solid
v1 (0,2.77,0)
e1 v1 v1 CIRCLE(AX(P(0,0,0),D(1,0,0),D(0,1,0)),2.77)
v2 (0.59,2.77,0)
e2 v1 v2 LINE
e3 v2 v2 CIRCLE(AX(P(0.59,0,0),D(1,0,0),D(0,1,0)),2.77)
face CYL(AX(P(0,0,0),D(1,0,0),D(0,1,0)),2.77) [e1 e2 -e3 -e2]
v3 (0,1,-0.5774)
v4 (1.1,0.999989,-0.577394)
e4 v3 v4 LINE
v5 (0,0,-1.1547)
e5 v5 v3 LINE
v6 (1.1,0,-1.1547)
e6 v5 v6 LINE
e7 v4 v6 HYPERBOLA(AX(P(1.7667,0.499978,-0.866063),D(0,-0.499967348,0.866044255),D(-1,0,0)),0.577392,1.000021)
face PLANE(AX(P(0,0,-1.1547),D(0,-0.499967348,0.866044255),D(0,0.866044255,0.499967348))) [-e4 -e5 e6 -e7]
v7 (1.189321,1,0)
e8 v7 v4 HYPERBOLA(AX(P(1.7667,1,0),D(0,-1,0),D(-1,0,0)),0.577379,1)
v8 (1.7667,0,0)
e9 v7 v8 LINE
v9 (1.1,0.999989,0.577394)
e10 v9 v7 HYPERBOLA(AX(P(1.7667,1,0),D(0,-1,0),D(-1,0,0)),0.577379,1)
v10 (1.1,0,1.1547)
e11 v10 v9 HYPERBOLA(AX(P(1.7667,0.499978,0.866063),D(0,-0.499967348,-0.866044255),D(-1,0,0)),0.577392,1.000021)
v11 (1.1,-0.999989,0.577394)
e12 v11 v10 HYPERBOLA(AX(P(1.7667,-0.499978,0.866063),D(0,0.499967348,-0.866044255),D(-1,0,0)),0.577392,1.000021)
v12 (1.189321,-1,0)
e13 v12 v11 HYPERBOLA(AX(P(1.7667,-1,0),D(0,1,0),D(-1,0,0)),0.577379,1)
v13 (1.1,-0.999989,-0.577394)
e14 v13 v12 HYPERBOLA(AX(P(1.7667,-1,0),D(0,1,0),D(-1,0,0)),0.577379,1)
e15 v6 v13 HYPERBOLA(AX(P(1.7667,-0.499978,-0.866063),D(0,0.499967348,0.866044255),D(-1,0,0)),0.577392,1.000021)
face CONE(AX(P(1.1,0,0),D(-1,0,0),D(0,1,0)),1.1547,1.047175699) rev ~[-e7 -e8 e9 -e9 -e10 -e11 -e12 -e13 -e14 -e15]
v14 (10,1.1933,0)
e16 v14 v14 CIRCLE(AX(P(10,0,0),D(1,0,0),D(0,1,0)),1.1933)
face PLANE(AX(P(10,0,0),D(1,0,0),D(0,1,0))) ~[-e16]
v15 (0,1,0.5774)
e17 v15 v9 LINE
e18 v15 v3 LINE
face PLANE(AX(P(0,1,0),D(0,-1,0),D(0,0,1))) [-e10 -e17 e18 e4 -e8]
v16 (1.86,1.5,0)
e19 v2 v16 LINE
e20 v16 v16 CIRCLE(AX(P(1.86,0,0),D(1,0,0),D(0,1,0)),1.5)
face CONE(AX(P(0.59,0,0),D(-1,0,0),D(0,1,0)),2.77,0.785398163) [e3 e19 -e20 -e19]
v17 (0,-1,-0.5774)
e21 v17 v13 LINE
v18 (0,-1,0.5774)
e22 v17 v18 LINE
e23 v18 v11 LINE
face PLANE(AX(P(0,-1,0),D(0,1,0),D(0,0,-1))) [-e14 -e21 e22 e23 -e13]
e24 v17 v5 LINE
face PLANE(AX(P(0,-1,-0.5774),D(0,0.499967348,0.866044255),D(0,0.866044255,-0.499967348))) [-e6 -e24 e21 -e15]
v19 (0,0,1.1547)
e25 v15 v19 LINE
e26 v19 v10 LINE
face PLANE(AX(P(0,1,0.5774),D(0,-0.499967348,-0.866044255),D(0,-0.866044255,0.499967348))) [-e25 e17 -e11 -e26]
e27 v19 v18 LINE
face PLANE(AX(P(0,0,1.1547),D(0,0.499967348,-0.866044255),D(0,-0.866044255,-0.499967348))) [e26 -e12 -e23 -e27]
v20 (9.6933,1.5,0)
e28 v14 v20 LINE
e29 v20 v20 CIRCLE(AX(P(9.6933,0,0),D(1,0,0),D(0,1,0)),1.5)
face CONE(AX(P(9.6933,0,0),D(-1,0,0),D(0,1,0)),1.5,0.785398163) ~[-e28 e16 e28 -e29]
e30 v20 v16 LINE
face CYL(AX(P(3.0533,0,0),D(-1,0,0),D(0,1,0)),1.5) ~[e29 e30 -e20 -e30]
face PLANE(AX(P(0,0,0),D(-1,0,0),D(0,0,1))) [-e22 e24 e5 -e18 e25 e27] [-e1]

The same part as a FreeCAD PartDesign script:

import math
import FreeCAD as App
import Part
import Sketcher

V = App.Vector
Q = App.Units.Quantity


def edges_at(feature, points):
    """Names of the edges that pass closest to the given points."""
    edges = feature.Shape.Edges
    near = lambda p: min(range(len(edges)), key=lambda i: edges[i].distToShape(Part.Vertex(*p))[0])
    return sorted({f"Edge{near(p) + 1}" for p in points})


def add_polygon(sketch, points):
    """Adds a closed chain of lines whose ends are joined by coincident constraints."""
    first, n = sketch.GeometryCount, len(points)
    for a, b in zip(points, points[1:] + points[:1]):
        sketch.addGeometry(Part.LineSegment(App.Vector(*a, 0), App.Vector(*b, 0)), False)
    for i in range(n):
        sketch.addConstraint(Sketcher.Constraint("Coincident", first + i, 2, first + (i + 1) % n, 1))

doc = App.newDocument("Part")
params = doc.addObject("Spreadsheet::Sheet", "Params")
for row, (alias, value) in enumerate([
    ("sketch1_width", "1.1 mm"),
    ("sketch1_height", "1.5 mm"),
    ("sketch1_width2", "0.59 mm"),
    ("revolution_angle", "360 deg"),
    ("chamfer_size", "0.3067 mm"),
    ("chamfer_size2", "0.3067 mm"),
], start=1):
    params.set(f"A{row}", alias)
    params.set(f"B{row}", "=" + value)
    params.setAlias(f"B{row}", alias)

body = doc.addObject("PartDesign::Body", "Body")

# Sketch on XY plane
sketch1 = body.newObject("Sketcher::SketchObject", "Sketch")
sketch1.AttachmentSupport = (doc.getObject("XY_Plane"), [""])
sketch1.MapMode = "FlatFace"
add_polygon(sketch1, [(1.7667, 0), (10, 0), (10, 1.5), (1.86, 1.5), (0.59, 2.77), (0, 2.77), (0, 1.1547), (1.1, 1.1547)])  # lines 0-7
sketch1.addConstraint(Sketcher.Constraint("Horizontal", 0))
sketch1.addConstraint(Sketcher.Constraint("Vertical", 1))
sketch1.addConstraint(Sketcher.Constraint("Horizontal", 2))
sketch1.addConstraint(Sketcher.Constraint("Horizontal", 4))
sketch1.addConstraint(Sketcher.Constraint("Vertical", 5))
sketch1.addConstraint(Sketcher.Constraint("Horizontal", 6))
sketch1.addConstraint(Sketcher.Constraint("PointOnObject", 0, 2, -1))
sketch1.addConstraint(Sketcher.Constraint("PointOnObject", 4, 2, -2))
sketch1.addConstraint(Sketcher.Constraint("DistanceX", 6, 1, 6, 2, 1.1))
sketch1.addConstraint(Sketcher.Constraint("DistanceX", -1, 1, 0, 2, 10.0))
sketch1.addConstraint(Sketcher.Constraint("DistanceX", -1, 1, 2, 2, 1.86))
sketch1.addConstraint(Sketcher.Constraint("Angle", 3, Q("135 deg")))
sketch1.addConstraint(Sketcher.Constraint("DistanceY", 1, 1, 1, 2, 1.5))
sketch1.addConstraint(Sketcher.Constraint("DistanceX", 4, 2, 4, 1, 0.59))
sketch1.addConstraint(Sketcher.Constraint("DistanceX", 0, 1, 0, 2, 8.2333))
sketch1.addConstraint(Sketcher.Constraint("DistanceY", 5, 2, 5, 1, 1.6153))
sketch1.setExpression("Constraints[16]", "Params.sketch1_width")
sketch1.setExpression("Constraints[20]", "Params.sketch1_height")
sketch1.setExpression("Constraints[21]", "Params.sketch1_width2")
revolution = body.newObject("PartDesign::Revolution", "Revolution")
revolution.Profile = sketch1
revolution.ReferenceAxis = (sketch1, ["H_Axis"])
revolution.setExpression("Angle", "Params.revolution_angle")

# Sketch on YZ plane
sketch2 = body.newObject("Sketcher::SketchObject", "Sketch001")
sketch2.AttachmentSupport = (doc.getObject("YZ_Plane"), [""])
sketch2.MapMode = "FlatFace"
sketch2.addGeometry(Part.LineSegment(V(1, 0.5774, 0), V(0, 1.1547, 0)), False)
sketch2.addGeometry(Part.ArcOfCircle(Part.Circle(V(0, 0, 0), V(0, 0, 1), 1.1547), math.radians(30.002137), math.radians(90)), False)
sketch2.addGeometry(Part.ArcOfCircle(Part.Circle(V(0, 0, 0), V(0, 0, 1), 1.1547), math.radians(90), math.radians(149.997863)), False)
sketch2.addGeometry(Part.LineSegment(V(0, 1.1547, 0), V(-1, 0.5774, 0)), False)
sketch2.addGeometry(Part.ArcOfCircle(Part.Circle(V(0, 0, 0), V(0, 0, 1), 1.1547), math.radians(-30.002137), math.radians(30.002137)), False)
sketch2.addGeometry(Part.LineSegment(V(1, 0.5774, 0), V(1, -0.5774, 0)), False)
sketch2.addGeometry(Part.LineSegment(V(-1, 0.5774, 0), V(-1, -0.5774, 0)), False)
sketch2.addGeometry(Part.ArcOfCircle(Part.Circle(V(0, 0, 0), V(0, 0, 1), 1.1547), math.radians(149.997863), math.radians(210.002137)), False)
sketch2.addGeometry(Part.LineSegment(V(-1, -0.5774, 0), V(0, -1.1547, 0)), False)
sketch2.addGeometry(Part.ArcOfCircle(Part.Circle(V(0, 0, 0), V(0, 0, 1), 1.1547), math.radians(-149.997863), math.radians(-90)), False)
sketch2.addGeometry(Part.ArcOfCircle(Part.Circle(V(0, 0, 0), V(0, 0, 1), 1.1547), math.radians(-90), math.radians(-30.002137)), False)
sketch2.addGeometry(Part.LineSegment(V(0, -1.1547, 0), V(1, -0.5774, 0)), False)
sketch2.addConstraint(Sketcher.Constraint("Coincident", 0, 1, 1, 1))
sketch2.addConstraint(Sketcher.Constraint("Coincident", 1, 2, 0, 2))
sketch2.addConstraint(Sketcher.Constraint("Coincident", 2, 1, 3, 1))
sketch2.addConstraint(Sketcher.Constraint("Coincident", 3, 2, 2, 2))
sketch2.addConstraint(Sketcher.Constraint("Coincident", 4, 1, 5, 2))
sketch2.addConstraint(Sketcher.Constraint("Coincident", 5, 1, 4, 2))
sketch2.addConstraint(Sketcher.Constraint("Coincident", 6, 1, 7, 1))
sketch2.addConstraint(Sketcher.Constraint("Coincident", 7, 2, 6, 2))
sketch2.addConstraint(Sketcher.Constraint("Coincident", 8, 1, 9, 1))
sketch2.addConstraint(Sketcher.Constraint("Coincident", 9, 2, 8, 2))
sketch2.addConstraint(Sketcher.Constraint("Coincident", 10, 1, 11, 1))
sketch2.addConstraint(Sketcher.Constraint("Coincident", 11, 2, 10, 2))
sketch2.addConstraint(Sketcher.Constraint("Vertical", 5))
sketch2.addConstraint(Sketcher.Constraint("Vertical", 6))
sketch2.addConstraint(Sketcher.Constraint("Coincident", 1, 3, -1, 1))
sketch2.addConstraint(Sketcher.Constraint("Coincident", 2, 3, -1, 1))
sketch2.addConstraint(Sketcher.Constraint("Coincident", 4, 3, -1, 1))
sketch2.addConstraint(Sketcher.Constraint("Coincident", 7, 3, -1, 1))
sketch2.addConstraint(Sketcher.Constraint("Coincident", 9, 3, -1, 1))
sketch2.addConstraint(Sketcher.Constraint("Coincident", 10, 3, -1, 1))
sketch2.addConstraint(Sketcher.Constraint("Coincident", 2, 1, 1, 2))
sketch2.addConstraint(Sketcher.Constraint("Coincident", 5, 1, 0, 1))
sketch2.addConstraint(Sketcher.Constraint("Coincident", 6, 1, 3, 2))
sketch2.addConstraint(Sketcher.Constraint("Coincident", 8, 1, 7, 2))
sketch2.addConstraint(Sketcher.Constraint("Coincident", 10, 1, 9, 2))
sketch2.addConstraint(Sketcher.Constraint("PointOnObject", 1, 2, -2))
sketch2.addConstraint(Sketcher.Constraint("PointOnObject", 9, 2, -2))
sketch2.addConstraint(Sketcher.Constraint("Parallel", 0, 8))
sketch2.addConstraint(Sketcher.Constraint("Parallel", 3, 11))
sketch2.addConstraint(Sketcher.Constraint("DistanceX", -1, 1, 0, 1, 1.0))
sketch2.addConstraint(Sketcher.Constraint("Radius", 1, 1.1547))
pad1 = body.newObject("PartDesign::Pad", "Pad")
pad1.Profile = sketch2
pad1.Type = "UpToFirst"
doc.recompute()

chamfer = body.newObject("PartDesign::Chamfer", "Chamfer")
chamfer.Base = (pad1, edges_at(pad1, [(10, -1.5, 0)]))
chamfer.ChamferType = "Two distances"
chamfer.setExpression("Size", "Params.chamfer_size")
chamfer.setExpression("Size2", "Params.chamfer_size2")

doc.recompute()
